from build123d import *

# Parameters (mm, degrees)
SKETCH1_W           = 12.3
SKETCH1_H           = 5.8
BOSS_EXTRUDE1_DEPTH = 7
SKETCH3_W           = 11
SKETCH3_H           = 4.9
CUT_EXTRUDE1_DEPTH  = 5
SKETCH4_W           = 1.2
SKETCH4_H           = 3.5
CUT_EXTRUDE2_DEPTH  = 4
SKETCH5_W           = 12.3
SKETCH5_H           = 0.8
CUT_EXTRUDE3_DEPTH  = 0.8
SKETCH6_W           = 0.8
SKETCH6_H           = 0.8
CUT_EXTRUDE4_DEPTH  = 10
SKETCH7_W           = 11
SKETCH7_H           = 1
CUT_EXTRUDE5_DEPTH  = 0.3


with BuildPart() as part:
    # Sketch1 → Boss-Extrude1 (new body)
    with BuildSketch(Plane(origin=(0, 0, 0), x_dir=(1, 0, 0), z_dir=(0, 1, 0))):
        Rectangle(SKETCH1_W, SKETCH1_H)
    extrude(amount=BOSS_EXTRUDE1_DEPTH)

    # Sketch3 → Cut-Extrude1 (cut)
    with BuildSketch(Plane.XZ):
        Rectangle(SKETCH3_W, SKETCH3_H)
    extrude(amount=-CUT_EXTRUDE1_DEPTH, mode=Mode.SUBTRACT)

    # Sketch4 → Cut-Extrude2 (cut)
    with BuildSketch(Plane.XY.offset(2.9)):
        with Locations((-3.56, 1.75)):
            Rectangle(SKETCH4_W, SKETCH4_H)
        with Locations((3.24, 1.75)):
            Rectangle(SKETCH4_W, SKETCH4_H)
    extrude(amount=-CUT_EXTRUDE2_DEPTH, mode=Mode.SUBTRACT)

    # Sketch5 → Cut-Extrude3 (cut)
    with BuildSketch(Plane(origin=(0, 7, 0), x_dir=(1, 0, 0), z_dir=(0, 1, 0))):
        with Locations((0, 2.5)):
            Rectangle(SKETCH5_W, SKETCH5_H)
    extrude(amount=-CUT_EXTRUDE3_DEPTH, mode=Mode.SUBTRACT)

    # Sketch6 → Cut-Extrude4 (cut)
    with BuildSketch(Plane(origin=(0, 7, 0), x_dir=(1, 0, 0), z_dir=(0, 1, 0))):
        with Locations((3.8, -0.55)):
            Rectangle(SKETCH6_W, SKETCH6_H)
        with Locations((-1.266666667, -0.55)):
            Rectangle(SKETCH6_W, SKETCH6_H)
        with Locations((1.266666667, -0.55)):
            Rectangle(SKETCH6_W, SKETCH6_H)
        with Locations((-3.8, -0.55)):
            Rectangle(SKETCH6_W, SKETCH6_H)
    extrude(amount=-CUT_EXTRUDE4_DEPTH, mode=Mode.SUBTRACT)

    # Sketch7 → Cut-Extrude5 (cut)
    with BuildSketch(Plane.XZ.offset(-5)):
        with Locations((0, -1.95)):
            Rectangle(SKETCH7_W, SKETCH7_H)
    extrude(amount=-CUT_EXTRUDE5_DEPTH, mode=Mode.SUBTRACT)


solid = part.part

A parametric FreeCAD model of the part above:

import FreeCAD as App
import Part
import Sketcher

V = App.Vector
Q = App.Units.Quantity

doc = App.newDocument("Part")
body = doc.addObject("PartDesign::Body", "Body")

# Sketch on XZ plane
sketch1 = body.newObject("Sketcher::SketchObject", "Sketch")
sketch1.AttachmentSupport = (doc.getObject("XZ_Plane"), [""])
sketch1.MapMode = "FlatFace"
sketch1.addGeometry([
    Part.LineSegment(V(-6.15, -2.9, 0), V(-6.15, 2.9, 0)),
    Part.LineSegment(V(-6.15, 2.9, 0), V(6.15, 2.9, 0)),
    Part.LineSegment(V(6.15, 2.9, 0), V(6.15, -2.9, 0)),
    Part.LineSegment(V(6.15, -2.9, 0), V(-6.15, -2.9, 0)),
], False)
sketch1.addConstraint([
    Sketcher.Constraint("Coincident", 0, 2, 1, 1),
    Sketcher.Constraint("Coincident", 1, 2, 2, 1),
    Sketcher.Constraint("Coincident", 2, 2, 3, 1),
    Sketcher.Constraint("Coincident", 3, 2, 0, 1),
    Sketcher.Constraint("Vertical", 0),
    Sketcher.Constraint("Horizontal", 1),
    Sketcher.Constraint("Vertical", 2),
    Sketcher.Constraint("Horizontal", 3),
    Sketcher.Constraint("Symmetric", 0, 2, 2, 2, -1, 1),
    Sketcher.Constraint("DistanceX", 1, 1, 1, 2, Q("12.3 mm")),
    Sketcher.Constraint("DistanceY", 0, 1, 0, 2, Q("5.8 mm")),
])
pad1 = body.newObject("PartDesign::Pad", "Pad")
pad1.Profile = sketch1
pad1.Length = 7
pad1.Reversed = True

# Sketch on XZ plane
sketch2 = body.newObject("Sketcher::SketchObject", "Sketch001")
sketch2.AttachmentSupport = (doc.getObject("XZ_Plane"), [""])
sketch2.MapMode = "FlatFace"
sketch2.addGeometry([
    Part.LineSegment(V(-5.5, 2.45, 0), V(-5.5, -2.45, 0)),
    Part.LineSegment(V(-5.5, -2.45, 0), V(5.5, -2.45, 0)),
    Part.LineSegment(V(5.5, -2.45, 0), V(5.5, 2.45, 0)),
    Part.LineSegment(V(5.5, 2.45, 0), V(-5.5, 2.45, 0)),
], False)
sketch2.addConstraint([
    Sketcher.Constraint("Coincident", 0, 2, 1, 1),
    Sketcher.Constraint("Coincident", 1, 2, 2, 1),
    Sketcher.Constraint("Coincident", 2, 2, 3, 1),
    Sketcher.Constraint("Coincident", 3, 2, 0, 1),
    Sketcher.Constraint("Vertical", 0),
    Sketcher.Constraint("Horizontal", 1),
    Sketcher.Constraint("Vertical", 2),
    Sketcher.Constraint("Horizontal", 3),
    Sketcher.Constraint("Symmetric", 0, 2, 2, 2, -1, 1),
    Sketcher.Constraint("DistanceX", 1, 1, 1, 2, Q("11 mm")),
    Sketcher.Constraint("DistanceY", 0, 2, 0, 1, Q("4.9 mm")),
])
pocket1 = body.newObject("PartDesign::Pocket", "Pocket")
pocket1.Profile = sketch2
pocket1.Length = 5

# Sketch on XY plane
sketch3 = body.newObject("Sketcher::SketchObject", "Sketch002")
sketch3.AttachmentSupport = (doc.getObject("XY_Plane"), [""])
sketch3.MapMode = "FlatFace"
sketch3.AttachmentOffset = App.Placement(V(0, 0, 2.9), App.Rotation())
sketch3.addGeometry([
    Part.LineSegment(V(-4.16, 3.5, 0), V(-4.16, 0, 0)),  # 0
    Part.LineSegment(V(-4.16, 0, 0), V(-2.96, 0, 0)),  # 1
    Part.LineSegment(V(-2.96, 0, 0), V(-2.96, 3.5, 0)),  # 2
    Part.LineSegment(V(-2.96, 3.5, 0), V(-4.16, 3.5, 0)),  # 3
    Part.LineSegment(V(2.64, 3.5, 0), V(2.64, 0, 0)),  # 4
    Part.LineSegment(V(2.64, 0, 0), V(3.84, 0, 0)),  # 5
    Part.LineSegment(V(3.84, 0, 0), V(3.84, 3.5, 0)),  # 6
    Part.LineSegment(V(3.84, 3.5, 0), V(2.64, 3.5, 0)),  # 7
], False)
sketch3.addConstraint([
    Sketcher.Constraint("Coincident", 0, 2, 1, 1),
    Sketcher.Constraint("Coincident", 1, 2, 2, 1),
    Sketcher.Constraint("Coincident", 2, 2, 3, 1),
    Sketcher.Constraint("Coincident", 3, 2, 0, 1),
    Sketcher.Constraint("Coincident", 4, 2, 5, 1),
    Sketcher.Constraint("Coincident", 5, 2, 6, 1),
    Sketcher.Constraint("Coincident", 6, 2, 7, 1),
    Sketcher.Constraint("Coincident", 7, 2, 4, 1),
    Sketcher.Constraint("Vertical", 0),
    Sketcher.Constraint("Horizontal", 1),
    Sketcher.Constraint("Vertical", 2),
    Sketcher.Constraint("Horizontal", 3),
    Sketcher.Constraint("Vertical", 4),
    Sketcher.Constraint("Horizontal", 5),
    Sketcher.Constraint("Vertical", 6),
    Sketcher.Constraint("Horizontal", 7),
    Sketcher.Constraint("PointOnObject", 0, 2, -1),
    Sketcher.Constraint("PointOnObject", 4, 2, -1),
    Sketcher.Constraint("Horizontal", 3, 2, 6, 2),
    Sketcher.Constraint("Equal", 3, 5),
    Sketcher.Constraint("DistanceX", 1, 1, 1, 2, Q("1.2 mm")),
    Sketcher.Constraint("DistanceY", 0, 2, 0, 1, Q("3.5 mm")),
    Sketcher.Constraint("DistanceX", 0, 2, 5, 2, Q("8 mm")),
    Sketcher.Constraint("DistanceX", 0, 2, -1, 1, Q("4.16 mm")),
])
pocket2 = body.newObject("PartDesign::Pocket", "Pocket001")
pocket2.Profile = sketch3
pocket2.Length = 4

# Sketch on XZ plane
sketch4 = body.newObject("Sketcher::SketchObject", "Sketch003")
sketch4.AttachmentSupport = (doc.getObject("XZ_Plane"), [""])
sketch4.MapMode = "FlatFace"
sketch4.AttachmentOffset = App.Placement(V(0, 0, -7), App.Rotation())
sketch4.addGeometry([
    Part.LineSegment(V(-6.15, -2.9, 0), V(-6.15, -2.1, 0)),
    Part.LineSegment(V(-6.15, -2.1, 0), V(6.15, -2.1, 0)),
    Part.LineSegment(V(6.15, -2.1, 0), V(6.15, -2.9, 0)),
    Part.LineSegment(V(6.15, -2.9, 0), V(-6.15, -2.9, 0)),
], False)
sketch4.addConstraint([
    Sketcher.Constraint("Coincident", 0, 2, 1, 1),
    Sketcher.Constraint("Coincident", 1, 2, 2, 1),
    Sketcher.Constraint("Coincident", 2, 2, 3, 1),
    Sketcher.Constraint("Coincident", 3, 2, 0, 1),
    Sketcher.Constraint("Vertical", 0),
    Sketcher.Constraint("Horizontal", 1),
    Sketcher.Constraint("Vertical", 2),
    Sketcher.Constraint("Horizontal", 3),
    Sketcher.Constraint("DistanceX", 1, 1, 1, 2, Q("12.3 mm")),
    Sketcher.Constraint("DistanceY", 0, 1, 0, 2, Q("0.8 mm")),
    Sketcher.Constraint("DistanceY", 0, 2, -1, 1, Q("2.1 mm")),
    Sketcher.Constraint("DistanceX", 0, 2, -1, 1, Q("6.15 mm")),
])
pocket3 = body.newObject("PartDesign::Pocket", "Pocket002")
pocket3.Profile = sketch4
pocket3.Length = 0.8
pocket3.Reversed = True

# Sketch on XZ plane
sketch5 = body.newObject("Sketcher::SketchObject", "Sketch004")
sketch5.AttachmentSupport = (doc.getObject("XZ_Plane"), [""])
sketch5.MapMode = "FlatFace"
sketch5.AttachmentOffset = App.Placement(V(0, 0, -7), App.Rotation())
sketch5.addGeometry([
    Part.LineSegment(V(3.4, 0.15, 0), V(3.4, 0.95, 0)),  # 0
    Part.LineSegment(V(3.4, 0.95, 0), V(4.2, 0.95, 0)),  # 1
    Part.LineSegment(V(4.2, 0.95, 0), V(4.2, 0.15, 0)),  # 2
    Part.LineSegment(V(4.2, 0.15, 0), V(3.4, 0.15, 0)),  # 3
    Part.LineSegment(V(-1.666667, 0.15, 0), V(-1.666667, 0.95, 0)),  # 4
    Part.LineSegment(V(-1.666667, 0.95, 0), V(-0.866667, 0.95, 0)),  # 5
    Part.LineSegment(V(-0.866667, 0.95, 0), V(-0.866667, 0.15, 0)),  # 6
    Part.LineSegment(V(-0.866667, 0.15, 0), V(-1.666667, 0.15, 0)),  # 7
    Part.LineSegment(V(0.866667, 0.15, 0), V(0.866667, 0.95, 0)),  # 8
    Part.LineSegment(V(0.866667, 0.95, 0), V(1.666667, 0.95, 0)),  # 9
    Part.LineSegment(V(1.666667, 0.95, 0), V(1.666667, 0.15, 0)),  # 10
    Part.LineSegment(V(1.666667, 0.15, 0), V(0.866667, 0.15, 0)),  # 11
    Part.LineSegment(V(-4.2, 0.15, 0), V(-4.2, 0.95, 0)),  # 12
    Part.LineSegment(V(-4.2, 0.95, 0), V(-3.4, 0.95, 0)),  # 13
    Part.LineSegment(V(-3.4, 0.95, 0), V(-3.4, 0.15, 0)),  # 14
    Part.LineSegment(V(-3.4, 0.15, 0), V(-4.2, 0.15, 0)),  # 15
], False)
sketch5.addConstraint([
    Sketcher.Constraint("Coincident", 0, 2, 1, 1),
    Sketcher.Constraint("Coincident", 1, 2, 2, 1),
    Sketcher.Constraint("Coincident", 2, 2, 3, 1),
    Sketcher.Constraint("Coincident", 3, 2, 0, 1),
    Sketcher.Constraint("Coincident", 4, 2, 5, 1),
    Sketcher.Constraint("Coincident", 5, 2, 6, 1),
    Sketcher.Constraint("Coincident", 6, 2, 7, 1),
    Sketcher.Constraint("Coincident", 7, 2, 4, 1),
    Sketcher.Constraint("Coincident", 8, 2, 9, 1),
    Sketcher.Constraint("Coincident", 9, 2, 10, 1),
    Sketcher.Constraint("Coincident", 10, 2, 11, 1),
    Sketcher.Constraint("Coincident", 11, 2, 8, 1),
    Sketcher.Constraint("Coincident", 12, 2, 13, 1),
    Sketcher.Constraint("Coincident", 13, 2, 14, 1),
    Sketcher.Constraint("Coincident", 14, 2, 15, 1),
    Sketcher.Constraint("Coincident", 15, 2, 12, 1),
    Sketcher.Constraint("Vertical", 0),
    Sketcher.Constraint("Horizontal", 1),
    Sketcher.Constraint("Vertical", 2),
    Sketcher.Constraint("Horizontal", 3),
    Sketcher.Constraint("Vertical", 4),
    Sketcher.Constraint("Horizontal", 5),
    Sketcher.Constraint("Vertical", 6),
    Sketcher.Constraint("Horizontal", 7),
    Sketcher.Constraint("Vertical", 8),
    Sketcher.Constraint("Horizontal", 9),
    Sketcher.Constraint("Vertical", 10),
    Sketcher.Constraint("Horizontal", 11),
    Sketcher.Constraint("Vertical", 12),
    Sketcher.Constraint("Horizontal", 13),
    Sketcher.Constraint("Vertical", 14),
    Sketcher.Constraint("Horizontal", 15),
    Sketcher.Constraint("Symmetric", 5, 2, 8, 2, -2),
    Sketcher.Constraint("Symmetric", 7, 2, 10, 2, -2),
    Sketcher.Constraint("Symmetric", 1, 2, 12, 2, -2),
    Sketcher.Constraint("Symmetric", 3, 2, 14, 2, -2),
    Sketcher.Constraint("Horizontal", 1, 2, 4, 2),
    Sketcher.Constraint("Horizontal", 3, 2, 6, 2),
    Sketcher.Constraint("Equal", 3, 5),
    Sketcher.Constraint("Equal", 15, 0),
    Sketcher.Constraint("DistanceX", 1, 1, 1, 2, Q("0.8 mm")),
    Sketcher.Constraint("DistanceX", -1, 1, 0, 2, Q("3.4 mm")),
    Sketcher.Constraint("DistanceY", -1, 1, 0, 2, Q("0.95 mm")),
    Sketcher.Constraint("DistanceX", 4, 2, -1, 1, Q("1.666667 mm")),
])
pocket4 = body.newObject("PartDesign::Pocket", "Pocket003")
pocket4.Profile = sketch5
pocket4.Length = 10
pocket4.Reversed = True

# Sketch on XZ plane
sketch6 = body.newObject("Sketcher::SketchObject", "Sketch005")
sketch6.AttachmentSupport = (doc.getObject("XZ_Plane"), [""])
sketch6.MapMode = "FlatFace"
sketch6.AttachmentOffset = App.Placement(V(0, 0, -5), App.Rotation())
sketch6.addGeometry([
    Part.LineSegment(V(-5.5, -1.45, 0), V(-5.5, -2.45, 0)),
    Part.LineSegment(V(-5.5, -2.45, 0), V(5.5, -2.45, 0)),
    Part.LineSegment(V(5.5, -2.45, 0), V(5.5, -1.45, 0)),
    Part.LineSegment(V(5.5, -1.45, 0), V(-5.5, -1.45, 0)),
], False)
sketch6.addConstraint([
    Sketcher.Constraint("Coincident", 0, 2, 1, 1),
    Sketcher.Constraint("Coincident", 1, 2, 2, 1),
    Sketcher.Constraint("Coincident", 2, 2, 3, 1),
    Sketcher.Constraint("Coincident", 3, 2, 0, 1),
    Sketcher.Constraint("Vertical", 0),
    Sketcher.Constraint("Horizontal", 1),
    Sketcher.Constraint("Vertical", 2),
    Sketcher.Constraint("Horizontal", 3),
    Sketcher.Constraint("DistanceX", 1, 1, 1, 2, Q("11 mm")),
    Sketcher.Constraint("DistanceY", 0, 2, 0, 1, Q("1 mm")),
    Sketcher.Constraint("DistanceX", 0, 2, -1, 1, Q("5.5 mm")),
    Sketcher.Constraint("DistanceY", 0, 2, -1, 1, Q("2.45 mm")),
])
pocket5 = body.newObject("PartDesign::Pocket", "Pocket004")
pocket5.Profile = sketch6
pocket5.Length = 0.3

doc.recompute()
